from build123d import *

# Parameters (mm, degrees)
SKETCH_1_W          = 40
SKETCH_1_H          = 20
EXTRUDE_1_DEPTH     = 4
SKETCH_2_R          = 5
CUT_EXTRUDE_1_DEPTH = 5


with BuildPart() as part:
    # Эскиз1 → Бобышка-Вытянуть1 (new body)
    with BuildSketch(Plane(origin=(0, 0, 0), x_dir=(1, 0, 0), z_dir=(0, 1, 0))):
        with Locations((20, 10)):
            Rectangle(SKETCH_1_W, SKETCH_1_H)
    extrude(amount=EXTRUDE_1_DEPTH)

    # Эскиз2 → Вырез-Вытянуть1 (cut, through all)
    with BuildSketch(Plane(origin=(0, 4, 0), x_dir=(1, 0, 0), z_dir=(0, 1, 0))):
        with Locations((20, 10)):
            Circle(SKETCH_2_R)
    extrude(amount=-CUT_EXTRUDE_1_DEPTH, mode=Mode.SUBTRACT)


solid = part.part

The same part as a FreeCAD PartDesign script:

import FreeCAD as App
import Part
import Sketcher
Q = App.Units.Quantity

doc = App.newDocument("Part")
params = doc.addObject("Spreadsheet::Sheet", "Params")
for row, (alias, value) in enumerate([
    ("sketch1_width", "40 mm"),
    ("sketch1_height", "20 mm"),
    ("pad1_length", "4 mm"),
    ("sketch2_diameter", "10 mm"),
], start=1):
    params.set(f"A{row}", alias)
    params.set(f"B{row}", "=" + value)
    params.setAlias(f"B{row}", alias)

body = doc.addObject("PartDesign::Body", "Body")

sketch1 = doc.addObject("Sketcher::SketchObject", "Sketch")
body.addObject(sketch1)
sketch1.AttachmentSupport = (doc.XZ_Plane, [""])
sketch1.MapMode = "FlatFace"
sketch1.addGeometry([
    Part.LineSegment(App.Vector(0, -20, 0), App.Vector(0, 0, 0)),
    Part.LineSegment(App.Vector(0, 0, 0), App.Vector(40, 0, 0)),
    Part.LineSegment(App.Vector(40, 0, 0), App.Vector(40, -20, 0)),
    Part.LineSegment(App.Vector(40, -20, 0), App.Vector(0, -20, 0)),
], False)
sketch1.addConstraint([
    Sketcher.Constraint("Coincident", 0, 2, 1, 1),
    Sketcher.Constraint("Coincident", 1, 2, 2, 1),
    Sketcher.Constraint("Coincident", 2, 2, 3, 1),
    Sketcher.Constraint("Coincident", 3, 2, 0, 1),
    Sketcher.Constraint("Vertical", 0),
    Sketcher.Constraint("Horizontal", 1),
    Sketcher.Constraint("Vertical", 2),
    Sketcher.Constraint("Horizontal", 3),
    Sketcher.Constraint("Coincident", 0, 2, -1, 1),
    Sketcher.Constraint("DistanceX", 1, 1, 1, 2, Q("40 mm")),
    Sketcher.Constraint("DistanceY", 0, 1, 0, 2, Q("20 mm")),
])
sketch1.setExpression("Constraints[9]", "Params.sketch1_width")
sketch1.setExpression("Constraints[10]", "Params.sketch1_height")
pad1 = doc.addObject("PartDesign::Pad", "Pad")
body.addObject(pad1)
pad1.Profile = sketch1
pad1.setExpression("Length", "Params.pad1_length")
pad1.Reversed = True

sketch2 = doc.addObject("Sketcher::SketchObject", "Sketch001")
body.addObject(sketch2)
sketch2.AttachmentSupport = (doc.XZ_Plane, [""])
sketch2.MapMode = "FlatFace"
sketch2.AttachmentOffset = App.Placement(App.Vector(0, 0, -4), App.Rotation())
sketch2.addGeometry(Part.Circle(App.Vector(20, -10, 0), App.Vector(0, 0, 1), 5), False)
sketch2.addConstraint([
    Sketcher.Constraint("Diameter", 0, Q("10 mm")),
    Sketcher.Constraint("DistanceX", -1, 1, 0, 3, Q("20 mm")),
    Sketcher.Constraint("DistanceY", 0, 3, -1, 1, Q("10 mm")),
])
sketch2.setExpression("Constraints[0]", "Params.sketch2_diameter")
pocket1 = doc.addObject("PartDesign::Pocket", "Pocket")
body.addObject(pocket1)
pocket1.Profile = sketch2
pocket1.Type = "ThroughAll"
pocket1.Reversed = True

doc.recompute()
